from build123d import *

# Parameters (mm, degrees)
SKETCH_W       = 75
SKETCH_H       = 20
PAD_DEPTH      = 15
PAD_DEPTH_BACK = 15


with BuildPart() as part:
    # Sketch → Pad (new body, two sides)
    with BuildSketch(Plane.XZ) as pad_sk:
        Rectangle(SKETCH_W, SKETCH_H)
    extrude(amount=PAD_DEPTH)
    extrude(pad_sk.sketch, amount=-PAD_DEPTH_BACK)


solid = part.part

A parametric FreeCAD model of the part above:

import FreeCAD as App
import Part
import Sketcher
from FreeCAD import Vector
Q = App.Units.Quantity


def add_polygon(sketch, points):
    """Adds a closed chain of lines whose ends are joined by coincident constraints."""
    first, n = sketch.GeometryCount, len(points)
    for a, b in zip(points, points[1:] + points[:1]):
        sketch.addGeometry(Part.LineSegment(App.Vector(*a, 0), App.Vector(*b, 0)), False)
    for i in range(n):
        sketch.addConstraint(Sketcher.Constraint("Coincident", first + i, 2, first + (i + 1) % n, 1))

doc = App.newDocument("Part")
body = doc.addObject("PartDesign::Body", "Body")

sketch1 = body.newObject("Sketcher::SketchObject", "Sketch")
sketch1.AttachmentSupport = (doc.getObject("XZ_Plane"), [""])
sketch1.MapMode = "FlatFace"
add_polygon(sketch1, [(-38, 10), (-38, -10), (38, -10), (38, 10)])
sketch1.addConstraint([
    Sketcher.Constraint("Vertical", 0),
    Sketcher.Constraint("Horizontal", 1),
    Sketcher.Constraint("Vertical", 2),
    Sketcher.Constraint("Horizontal", 3),
    Sketcher.Constraint("Symmetric", 0, 2, 2, 2, -1, 1),
    Sketcher.Constraint("DistanceX", 1, 1, 1, 2, Q("75 mm")),
    Sketcher.Constraint("DistanceY", 0, 2, 0, 1, Q("20 mm")),
])
pad1 = body.newObject("PartDesign::Pad", "Pad")
pad1.Profile = sketch1
pad1.Type = "TwoLengths"
pad1.Length = 15
pad1.Length2 = 15

doc.recompute()
